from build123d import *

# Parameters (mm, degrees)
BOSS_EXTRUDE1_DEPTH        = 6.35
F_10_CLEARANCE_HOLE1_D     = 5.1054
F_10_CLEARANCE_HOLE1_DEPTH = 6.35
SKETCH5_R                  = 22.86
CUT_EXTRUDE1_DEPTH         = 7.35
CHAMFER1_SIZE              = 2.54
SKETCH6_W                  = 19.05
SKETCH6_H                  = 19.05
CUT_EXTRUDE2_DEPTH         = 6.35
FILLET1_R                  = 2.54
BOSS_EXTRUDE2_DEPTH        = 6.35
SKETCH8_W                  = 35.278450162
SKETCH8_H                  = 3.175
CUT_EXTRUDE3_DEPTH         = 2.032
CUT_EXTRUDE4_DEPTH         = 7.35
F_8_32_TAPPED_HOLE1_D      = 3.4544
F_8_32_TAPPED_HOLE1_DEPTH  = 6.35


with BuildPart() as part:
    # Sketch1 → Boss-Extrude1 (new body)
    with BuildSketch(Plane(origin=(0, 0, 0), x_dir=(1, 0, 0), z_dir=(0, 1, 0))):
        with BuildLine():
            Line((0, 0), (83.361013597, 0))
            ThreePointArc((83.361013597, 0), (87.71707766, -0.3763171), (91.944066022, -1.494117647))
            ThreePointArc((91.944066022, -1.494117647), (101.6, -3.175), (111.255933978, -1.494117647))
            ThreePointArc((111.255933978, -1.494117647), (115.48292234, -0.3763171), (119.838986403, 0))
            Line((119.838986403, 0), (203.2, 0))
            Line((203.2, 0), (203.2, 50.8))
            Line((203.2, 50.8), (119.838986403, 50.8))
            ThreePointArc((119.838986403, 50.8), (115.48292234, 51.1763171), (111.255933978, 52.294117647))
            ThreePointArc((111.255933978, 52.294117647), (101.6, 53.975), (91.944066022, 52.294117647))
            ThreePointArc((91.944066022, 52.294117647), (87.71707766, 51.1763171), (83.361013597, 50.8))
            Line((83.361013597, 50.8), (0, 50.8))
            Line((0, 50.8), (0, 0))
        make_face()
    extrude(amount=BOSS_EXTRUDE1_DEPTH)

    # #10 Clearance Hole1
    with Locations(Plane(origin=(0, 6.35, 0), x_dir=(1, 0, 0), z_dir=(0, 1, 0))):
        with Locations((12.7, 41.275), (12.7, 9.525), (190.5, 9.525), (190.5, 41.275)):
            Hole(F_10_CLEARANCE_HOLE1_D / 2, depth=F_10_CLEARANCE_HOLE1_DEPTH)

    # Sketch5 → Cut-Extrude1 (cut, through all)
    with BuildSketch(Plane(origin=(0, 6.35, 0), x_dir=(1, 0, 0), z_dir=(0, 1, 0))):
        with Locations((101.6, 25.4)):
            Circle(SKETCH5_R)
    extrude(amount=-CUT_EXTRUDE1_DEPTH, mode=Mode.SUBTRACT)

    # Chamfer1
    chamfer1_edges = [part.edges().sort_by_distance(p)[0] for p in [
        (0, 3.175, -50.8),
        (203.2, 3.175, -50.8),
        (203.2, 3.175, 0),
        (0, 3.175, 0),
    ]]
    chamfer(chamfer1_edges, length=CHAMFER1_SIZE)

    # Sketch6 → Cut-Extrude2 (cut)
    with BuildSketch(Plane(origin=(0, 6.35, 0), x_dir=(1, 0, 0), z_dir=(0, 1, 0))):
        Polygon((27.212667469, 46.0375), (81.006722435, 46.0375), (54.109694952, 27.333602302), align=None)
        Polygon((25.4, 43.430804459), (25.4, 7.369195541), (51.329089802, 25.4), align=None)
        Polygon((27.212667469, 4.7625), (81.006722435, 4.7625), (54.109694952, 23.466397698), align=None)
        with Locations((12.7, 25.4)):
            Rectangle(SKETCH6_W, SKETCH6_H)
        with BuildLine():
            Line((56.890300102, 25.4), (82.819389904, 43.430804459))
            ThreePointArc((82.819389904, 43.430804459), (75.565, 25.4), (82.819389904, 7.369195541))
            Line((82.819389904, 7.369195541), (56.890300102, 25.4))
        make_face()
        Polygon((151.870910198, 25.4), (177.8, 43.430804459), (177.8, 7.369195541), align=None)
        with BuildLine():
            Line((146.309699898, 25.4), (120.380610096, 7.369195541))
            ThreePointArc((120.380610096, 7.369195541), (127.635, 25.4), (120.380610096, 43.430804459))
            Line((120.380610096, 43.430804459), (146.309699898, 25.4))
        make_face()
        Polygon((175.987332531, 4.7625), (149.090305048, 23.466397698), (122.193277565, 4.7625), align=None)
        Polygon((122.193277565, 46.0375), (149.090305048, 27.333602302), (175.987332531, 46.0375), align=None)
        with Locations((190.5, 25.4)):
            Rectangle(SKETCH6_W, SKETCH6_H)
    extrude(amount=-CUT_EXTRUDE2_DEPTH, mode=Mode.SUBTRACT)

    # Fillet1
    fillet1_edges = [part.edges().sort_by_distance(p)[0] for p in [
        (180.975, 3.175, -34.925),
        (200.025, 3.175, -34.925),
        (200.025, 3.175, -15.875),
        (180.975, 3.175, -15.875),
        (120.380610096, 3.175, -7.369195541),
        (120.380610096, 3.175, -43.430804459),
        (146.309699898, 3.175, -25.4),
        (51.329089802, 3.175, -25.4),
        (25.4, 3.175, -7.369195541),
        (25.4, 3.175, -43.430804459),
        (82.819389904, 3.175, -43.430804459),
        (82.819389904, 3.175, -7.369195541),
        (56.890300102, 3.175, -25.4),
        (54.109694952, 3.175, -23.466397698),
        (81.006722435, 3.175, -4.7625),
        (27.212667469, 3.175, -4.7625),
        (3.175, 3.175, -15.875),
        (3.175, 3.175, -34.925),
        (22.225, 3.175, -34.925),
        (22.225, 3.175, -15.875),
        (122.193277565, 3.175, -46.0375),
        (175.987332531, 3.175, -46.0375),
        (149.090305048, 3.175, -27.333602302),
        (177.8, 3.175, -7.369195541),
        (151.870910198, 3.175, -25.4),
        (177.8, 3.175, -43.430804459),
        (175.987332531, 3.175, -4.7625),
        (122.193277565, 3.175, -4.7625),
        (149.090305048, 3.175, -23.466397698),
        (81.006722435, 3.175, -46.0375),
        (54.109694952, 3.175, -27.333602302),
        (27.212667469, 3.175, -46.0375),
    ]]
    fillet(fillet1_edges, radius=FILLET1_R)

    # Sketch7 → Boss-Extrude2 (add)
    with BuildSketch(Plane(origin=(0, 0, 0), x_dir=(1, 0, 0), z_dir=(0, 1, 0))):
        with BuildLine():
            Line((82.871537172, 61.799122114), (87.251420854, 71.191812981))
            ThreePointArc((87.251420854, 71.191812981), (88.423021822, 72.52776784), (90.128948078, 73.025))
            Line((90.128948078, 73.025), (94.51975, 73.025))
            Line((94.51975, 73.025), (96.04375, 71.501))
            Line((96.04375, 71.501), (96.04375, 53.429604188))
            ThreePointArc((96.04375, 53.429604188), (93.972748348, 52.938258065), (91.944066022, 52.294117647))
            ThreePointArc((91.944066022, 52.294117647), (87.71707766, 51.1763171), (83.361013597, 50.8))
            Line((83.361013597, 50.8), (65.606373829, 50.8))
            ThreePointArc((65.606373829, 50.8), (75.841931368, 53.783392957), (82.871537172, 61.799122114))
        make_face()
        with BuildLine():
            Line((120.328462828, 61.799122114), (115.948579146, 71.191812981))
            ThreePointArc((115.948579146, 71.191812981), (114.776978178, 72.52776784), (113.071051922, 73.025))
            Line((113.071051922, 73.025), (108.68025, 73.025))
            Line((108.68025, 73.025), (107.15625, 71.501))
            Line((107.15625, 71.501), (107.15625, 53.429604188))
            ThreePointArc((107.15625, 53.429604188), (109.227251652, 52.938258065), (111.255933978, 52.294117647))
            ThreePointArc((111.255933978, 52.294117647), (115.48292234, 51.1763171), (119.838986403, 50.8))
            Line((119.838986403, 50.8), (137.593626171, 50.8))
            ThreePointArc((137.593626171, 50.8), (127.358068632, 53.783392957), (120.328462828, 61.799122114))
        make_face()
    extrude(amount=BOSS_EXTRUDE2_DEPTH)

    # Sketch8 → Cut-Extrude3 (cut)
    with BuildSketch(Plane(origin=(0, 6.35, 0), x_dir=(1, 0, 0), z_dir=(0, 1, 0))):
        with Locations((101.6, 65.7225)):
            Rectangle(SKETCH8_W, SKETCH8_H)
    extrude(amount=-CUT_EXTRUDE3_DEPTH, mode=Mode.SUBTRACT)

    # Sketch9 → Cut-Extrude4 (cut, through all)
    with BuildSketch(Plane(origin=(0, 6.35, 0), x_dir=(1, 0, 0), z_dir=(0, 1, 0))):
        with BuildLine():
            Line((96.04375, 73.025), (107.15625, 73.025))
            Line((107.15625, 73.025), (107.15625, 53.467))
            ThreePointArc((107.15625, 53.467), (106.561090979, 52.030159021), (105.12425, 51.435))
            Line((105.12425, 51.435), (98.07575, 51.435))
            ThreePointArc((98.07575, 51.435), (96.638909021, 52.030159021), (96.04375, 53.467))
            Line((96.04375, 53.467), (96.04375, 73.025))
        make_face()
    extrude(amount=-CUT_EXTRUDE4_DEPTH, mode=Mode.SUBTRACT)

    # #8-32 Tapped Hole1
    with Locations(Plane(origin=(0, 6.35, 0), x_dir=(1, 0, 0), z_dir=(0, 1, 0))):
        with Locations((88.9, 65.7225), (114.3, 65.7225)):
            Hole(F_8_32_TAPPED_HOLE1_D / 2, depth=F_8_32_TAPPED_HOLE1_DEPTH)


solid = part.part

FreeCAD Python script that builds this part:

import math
import FreeCAD as App
import Part
import Sketcher

V = App.Vector
Q = App.Units.Quantity


def edges_at(feature, points):
    """Names of the edges that pass closest to the given points."""
    edges = feature.Shape.Edges
    near = lambda p: min(range(len(edges)), key=lambda i: edges[i].distToShape(Part.Vertex(*p))[0])
    return sorted({f"Edge{near(p) + 1}" for p in points})

doc = App.newDocument("Part")
body = doc.addObject("PartDesign::Body", "Body")

# Sketch on XZ plane
sketch1 = body.newObject("Sketcher::SketchObject", "Sketch")
sketch1.AttachmentSupport = (doc.getObject("XZ_Plane"), [""])
sketch1.MapMode = "FlatFace"
sketch1.addGeometry(Part.LineSegment(V(0, 0, 0), V(83.361014, 0, 0)), False)
sketch1.addGeometry(Part.ArcOfCircle(Part.Circle(V(83.361014, 25.4, 0), V(0, 0, 1), 25.4), math.radians(-90), math.radians(-70.250077)), False)
sketch1.addGeometry(Part.ArcOfCircle(Part.Circle(V(101.6, -25.4, 0), V(0, 0, 1), 28.575), math.radians(70.250077), math.radians(109.749923)), False)
sketch1.addGeometry(Part.ArcOfCircle(Part.Circle(V(119.838986, 25.4, 0), V(0, 0, 1), 25.4), math.radians(-109.749923), math.radians(-90)), False)
sketch1.addGeometry(Part.LineSegment(V(119.838986, 0, 0), V(203.2, 0, 0)), False)
sketch1.addGeometry(Part.LineSegment(V(203.2, 0, 0), V(203.2, -50.8, 0)), False)
sketch1.addGeometry(Part.LineSegment(V(203.2, -50.8, 0), V(119.838986, -50.8, 0)), False)
sketch1.addGeometry(Part.ArcOfCircle(Part.Circle(V(119.838986, -76.2, 0), V(0, 0, 1), 25.4), math.radians(90), math.radians(109.749923)), False)
sketch1.addGeometry(Part.ArcOfCircle(Part.Circle(V(101.6, -25.4, 0), V(0, 0, 1), 28.575), math.radians(-109.749923), math.radians(-70.250077)), False)
sketch1.addGeometry(Part.ArcOfCircle(Part.Circle(V(83.361014, -76.2, 0), V(0, 0, 1), 25.4), math.radians(70.250077), math.radians(90)), False)
sketch1.addGeometry(Part.LineSegment(V(83.361014, -50.8, 0), V(0, -50.8, 0)), False)
sketch1.addGeometry(Part.LineSegment(V(0, -50.8, 0), V(0, 0, 0)), False)
sketch1.addConstraint(Sketcher.Constraint("Tangent", 0, 2, 1, 1))
sketch1.addConstraint(Sketcher.Constraint("Tangent", 1, 2, 2, 2))
sketch1.addConstraint(Sketcher.Constraint("Tangent", 2, 1, 3, 1))
sketch1.addConstraint(Sketcher.Constraint("Tangent", 3, 2, 4, 1))
sketch1.addConstraint(Sketcher.Constraint("Coincident", 4, 2, 5, 1))
sketch1.addConstraint(Sketcher.Constraint("Coincident", 5, 2, 6, 1))
sketch1.addConstraint(Sketcher.Constraint("Tangent", 6, 2, 7, 1))
sketch1.addConstraint(Sketcher.Constraint("Tangent", 7, 2, 8, 2))
sketch1.addConstraint(Sketcher.Constraint("Tangent", 8, 1, 9, 1))
sketch1.addConstraint(Sketcher.Constraint("Tangent", 9, 2, 10, 1))
sketch1.addConstraint(Sketcher.Constraint("Coincident", 10, 2, 11, 1))
sketch1.addConstraint(Sketcher.Constraint("Coincident", 11, 2, 0, 1))
sketch1.addConstraint(Sketcher.Constraint("Horizontal", 0))
sketch1.addConstraint(Sketcher.Constraint("Horizontal", 4))
sketch1.addConstraint(Sketcher.Constraint("Vertical", 5))
sketch1.addConstraint(Sketcher.Constraint("Horizontal", 6))
sketch1.addConstraint(Sketcher.Constraint("Horizontal", 10))
sketch1.addConstraint(Sketcher.Constraint("Vertical", 11))
sketch1.addConstraint(Sketcher.Constraint("Coincident", 11, 2, -1, 1))
sketch1.addConstraint(Sketcher.Constraint("Coincident", 8, 3, 2, 3))
sketch1.addConstraint(Sketcher.Constraint("Equal", 1, 3))
sketch1.addConstraint(Sketcher.Constraint("Equal", 3, 7))
sketch1.addConstraint(Sketcher.Constraint("Equal", 2, 8))
sketch1.addConstraint(Sketcher.Constraint("Equal", 7, 9))
sketch1.addConstraint(Sketcher.Constraint("PointOnObject", 3, 2, -1))
sketch1.addConstraint(Sketcher.Constraint("Horizontal", 7, 3, 9, 3))
sketch1.addConstraint(Sketcher.Constraint("Vertical", 3, 3, 7, 3))
sketch1.addConstraint(Sketcher.Constraint("Equal", 0, 4))
sketch1.addConstraint(Sketcher.Constraint("Radius", 1, Q("1 in")))
sketch1.addConstraint(Sketcher.Constraint("DistanceY", 5, 2, 5, 1, Q("2 in")))
sketch1.addConstraint(Sketcher.Constraint("DistanceX", -1, 1, 2, 3, Q("4 in")))
sketch1.addConstraint(Sketcher.Constraint("Radius", 2, Q("1.125 in")))
pad1 = body.newObject("PartDesign::Pad", "Pad")
pad1.Profile = sketch1
pad1.Length = Q("0.25 in")
pad1.Reversed = True

# Sketch on XZ plane
sketch2 = body.newObject("Sketcher::SketchObject", "Sketch001")
sketch2.AttachmentSupport = (doc.getObject("XZ_Plane"), [""])
sketch2.MapMode = "FlatFace"
sketch2.AttachmentOffset = App.Placement(V(0, 0, -0.25 * 25.4), App.Rotation())
sketch2.addGeometry(Part.Circle(V(12.7, -41.275, 0), V(0, 0, 1), 2.5527), False)
sketch2.addGeometry(Part.Circle(V(12.7, -9.525, 0), V(0, 0, 1), 2.5527), False)
sketch2.addGeometry(Part.Circle(V(190.5, -9.525, 0), V(0, 0, 1), 2.5527), False)
sketch2.addGeometry(Part.Circle(V(190.5, -41.275, 0), V(0, 0, 1), 2.5527), False)
sketch2.addConstraint(Sketcher.Constraint("Equal", 0, 1))
sketch2.addConstraint(Sketcher.Constraint("Equal", 1, 2))
sketch2.addConstraint(Sketcher.Constraint("Equal", 2, 3))
sketch2.addConstraint(Sketcher.Constraint("Horizontal", 1, 3, 2, 3))
sketch2.addConstraint(Sketcher.Constraint("Horizontal", 0, 3, 3, 3))
sketch2.addConstraint(Sketcher.Constraint("Vertical", 0, 3, 1, 3))
sketch2.addConstraint(Sketcher.Constraint("Vertical", 2, 3, 3, 3))
sketch2.addConstraint(Sketcher.Constraint("Diameter", 0, Q("0.201 in")))
sketch2.addConstraint(Sketcher.Constraint("DistanceX", 1, 3, 2, 3, Q("7 in")))
sketch2.addConstraint(Sketcher.Constraint("DistanceX", -1, 1, 0, 3, Q("0.5 in")))
sketch2.addConstraint(Sketcher.Constraint("DistanceY", 0, 3, 1, 3, Q("1.25 in")))
sketch2.addConstraint(Sketcher.Constraint("DistanceY", 0, 3, -1, 1, Q("1.625 in")))
doc.recompute()
hole = body.newObject("PartDesign::Hole", "Hole")
hole.Profile = sketch2
hole.ThreadType = "None"
hole.Diameter = Q("0.201 in")
hole.DepthType = "Dimension"
hole.Depth = Q("0.25 in")
hole.DrillPoint = "Flat"
hole.Reversed = True

# Sketch on XZ plane
sketch3 = body.newObject("Sketcher::SketchObject", "Sketch002")
sketch3.AttachmentSupport = (doc.getObject("XZ_Plane"), [""])
sketch3.MapMode = "FlatFace"
sketch3.AttachmentOffset = App.Placement(V(0, 0, -0.25 * 25.4), App.Rotation())
sketch3.addGeometry(Part.Circle(V(101.6, -25.4, 0), V(0, 0, 1), 22.86), False)
sketch3.addConstraint(Sketcher.Constraint("Diameter", 0, Q("1.8 in")))
sketch3.addConstraint(Sketcher.Constraint("DistanceX", -1, 1, 0, 3, Q("4 in")))
sketch3.addConstraint(Sketcher.Constraint("DistanceY", 0, 3, -1, 1, Q("1 in")))
pocket1 = body.newObject("PartDesign::Pocket", "Pocket")
pocket1.Profile = sketch3
pocket1.Type = "ThroughAll"
pocket1.Reversed = True
doc.recompute()

chamfer = body.newObject("PartDesign::Chamfer", "Chamfer")
chamfer.Base = (pocket1, edges_at(pocket1, [
    (0, 3.175, -50.8),
    (203.2, 3.175, -50.8),
    (203.2, 3.175, 0),
    (0, 3.175, 0),
]))
chamfer.Size = Q("0.1 in")

# Sketch on XZ plane
sketch4 = body.newObject("Sketcher::SketchObject", "Sketch003")
sketch4.AttachmentSupport = (doc.getObject("XZ_Plane"), [""])
sketch4.MapMode = "FlatFace"
sketch4.AttachmentOffset = App.Placement(V(0, 0, -0.25 * 25.4), App.Rotation())
sketch4.addGeometry(Part.LineSegment(V(81.006722, -46.0375, 0), V(27.212667, -46.0375, 0)), False)
sketch4.addGeometry(Part.LineSegment(V(27.212667, -46.0375, 0), V(54.109695, -27.333602, 0)), False)
sketch4.addGeometry(Part.LineSegment(V(54.109695, -27.333602, 0), V(81.006722, -46.0375, 0)), False)
sketch4.addGeometry(Part.LineSegment(V(25.4, -43.430804, 0), V(25.4, -7.369196, 0)), False)
sketch4.addGeometry(Part.LineSegment(V(25.4, -7.369196, 0), V(51.32909, -25.4, 0)), False)
sketch4.addGeometry(Part.LineSegment(V(51.32909, -25.4, 0), V(25.4, -43.430804, 0)), False)
sketch4.addGeometry(Part.LineSegment(V(27.212667, -4.7625, 0), V(81.006722, -4.7625, 0)), False)
sketch4.addGeometry(Part.LineSegment(V(81.006722, -4.7625, 0), V(54.109695, -23.466398, 0)), False)
sketch4.addGeometry(Part.LineSegment(V(54.109695, -23.466398, 0), V(27.212667, -4.7625, 0)), False)
sketch4.addGeometry(Part.LineSegment(V(3.175, -34.925, 0), V(3.175, -15.875, 0)), False)
sketch4.addGeometry(Part.LineSegment(V(3.175, -15.875, 0), V(22.225, -15.875, 0)), False)
sketch4.addGeometry(Part.LineSegment(V(22.225, -15.875, 0), V(22.225, -34.925, 0)), False)
sketch4.addGeometry(Part.LineSegment(V(22.225, -34.925, 0), V(3.175, -34.925, 0)), False)
sketch4.addGeometry(Part.LineSegment(V(82.81939, -43.430804, 0), V(56.8903, -25.4, 0)), False)
sketch4.addGeometry(Part.LineSegment(V(56.8903, -25.4, 0), V(82.81939, -7.369196, 0)), False)
sketch4.addGeometry(Part.ArcOfCircle(Part.Circle(V(101.6, -25.4, 0), V(0, 0, 1), 26.035), math.radians(136.166887), math.radians(223.833113)), False)
sketch4.addGeometry(Part.LineSegment(V(177.8, -43.430804, 0), V(151.87091, -25.4, 0)), False)
sketch4.addGeometry(Part.LineSegment(V(151.87091, -25.4, 0), V(177.8, -7.369196, 0)), False)
sketch4.addGeometry(Part.LineSegment(V(177.8, -7.369196, 0), V(177.8, -43.430804, 0)), False)
sketch4.addGeometry(Part.LineSegment(V(120.38061, -7.369196, 0), V(146.3097, -25.4, 0)), False)
sketch4.addGeometry(Part.LineSegment(V(146.3097, -25.4, 0), V(120.38061, -43.430804, 0)), False)
sketch4.addGeometry(Part.ArcOfCircle(Part.Circle(V(101.6, -25.4, 0), V(0, 0, 1), 26.035), math.radians(-43.833113), math.radians(43.833113)), False)
sketch4.addGeometry(Part.LineSegment(V(175.987333, -4.7625, 0), V(149.090305, -23.466398, 0)), False)
sketch4.addGeometry(Part.LineSegment(V(149.090305, -23.466398, 0), V(122.193278, -4.7625, 0)), False)
sketch4.addGeometry(Part.LineSegment(V(122.193278, -4.7625, 0), V(175.987333, -4.7625, 0)), False)
sketch4.addGeometry(Part.LineSegment(V(122.193278, -46.0375, 0), V(149.090305, -27.333602, 0)), False)
sketch4.addGeometry(Part.LineSegment(V(149.090305, -27.333602, 0), V(175.987333, -46.0375, 0)), False)
sketch4.addGeometry(Part.LineSegment(V(175.987333, -46.0375, 0), V(122.193278, -46.0375, 0)), False)
sketch4.addGeometry(Part.LineSegment(V(180.975, -34.925, 0), V(180.975, -15.875, 0)), False)
sketch4.addGeometry(Part.LineSegment(V(180.975, -15.875, 0), V(200.025, -15.875, 0)), False)
sketch4.addGeometry(Part.LineSegment(V(200.025, -15.875, 0), V(200.025, -34.925, 0)), False)
sketch4.addGeometry(Part.LineSegment(V(200.025, -34.925, 0), V(180.975, -34.925, 0)), False)
sketch4.addConstraint(Sketcher.Constraint("Coincident", 0, 2, 1, 1))
sketch4.addConstraint(Sketcher.Constraint("Coincident", 1, 2, 2, 1))
sketch4.addConstraint(Sketcher.Constraint("Coincident", 2, 2, 0, 1))
sketch4.addConstraint(Sketcher.Constraint("Coincident", 3, 2, 4, 1))
sketch4.addConstraint(Sketcher.Constraint("Coincident", 4, 2, 5, 1))
sketch4.addConstraint(Sketcher.Constraint("Coincident", 5, 2, 3, 1))
sketch4.addConstraint(Sketcher.Constraint("Coincident", 6, 2, 7, 1))
sketch4.addConstraint(Sketcher.Constraint("Coincident", 7, 2, 8, 1))
sketch4.addConstraint(Sketcher.Constraint("Coincident", 8, 2, 6, 1))
sketch4.addConstraint(Sketcher.Constraint("Coincident", 9, 2, 10, 1))
sketch4.addConstraint(Sketcher.Constraint("Coincident", 10, 2, 11, 1))
sketch4.addConstraint(Sketcher.Constraint("Coincident", 11, 2, 12, 1))
sketch4.addConstraint(Sketcher.Constraint("Coincident", 12, 2, 9, 1))
sketch4.addConstraint(Sketcher.Constraint("Coincident", 13, 2, 14, 1))
sketch4.addConstraint(Sketcher.Constraint("Coincident", 14, 2, 15, 1))
sketch4.addConstraint(Sketcher.Constraint("Coincident", 15, 2, 13, 1))
sketch4.addConstraint(Sketcher.Constraint("Coincident", 16, 2, 17, 1))
sketch4.addConstraint(Sketcher.Constraint("Coincident", 17, 2, 18, 1))
sketch4.addConstraint(Sketcher.Constraint("Coincident", 18, 2, 16, 1))
sketch4.addConstraint(Sketcher.Constraint("Coincident", 19, 2, 20, 1))
sketch4.addConstraint(Sketcher.Constraint("Coincident", 20, 2, 21, 1))
sketch4.addConstraint(Sketcher.Constraint("Coincident", 21, 2, 19, 1))
sketch4.addConstraint(Sketcher.Constraint("Coincident", 22, 2, 23, 1))
sketch4.addConstraint(Sketcher.Constraint("Coincident", 23, 2, 24, 1))
sketch4.addConstraint(Sketcher.Constraint("Coincident", 24, 2, 22, 1))
sketch4.addConstraint(Sketcher.Constraint("Coincident", 25, 2, 26, 1))
sketch4.addConstraint(Sketcher.Constraint("Coincident", 26, 2, 27, 1))
sketch4.addConstraint(Sketcher.Constraint("Coincident", 27, 2, 25, 1))
sketch4.addConstraint(Sketcher.Constraint("Coincident", 28, 2, 29, 1))
sketch4.addConstraint(Sketcher.Constraint("Coincident", 29, 2, 30, 1))
sketch4.addConstraint(Sketcher.Constraint("Coincident", 30, 2, 31, 1))
sketch4.addConstraint(Sketcher.Constraint("Coincident", 31, 2, 28, 1))
sketch4.addConstraint(Sketcher.Constraint("Horizontal", 0))
sketch4.addConstraint(Sketcher.Constraint("Vertical", 3))
sketch4.addConstraint(Sketcher.Constraint("Horizontal", 6))
sketch4.addConstraint(Sketcher.Constraint("Vertical", 9))
sketch4.addConstraint(Sketcher.Constraint("Horizontal", 10))
sketch4.addConstraint(Sketcher.Constraint("Vertical", 11))
sketch4.addConstraint(Sketcher.Constraint("Horizontal", 12))
sketch4.addConstraint(Sketcher.Constraint("Vertical", 18))
sketch4.addConstraint(Sketcher.Constraint("Horizontal", 24))
sketch4.addConstraint(Sketcher.Constraint("Horizontal", 27))
sketch4.addConstraint(Sketcher.Constraint("Vertical", 28))
sketch4.addConstraint(Sketcher.Constraint("Horizontal", 29))
sketch4.addConstraint(Sketcher.Constraint("Vertical", 30))
sketch4.addConstraint(Sketcher.Constraint("Horizontal", 31))
sketch4.addConstraint(Sketcher.Constraint("Coincident", 21, 3, 15, 3))
sketch4.addConstraint(Sketcher.Constraint("Equal", 15, 21))
sketch4.addConstraint(Sketcher.Constraint("Parallel", 2, 4))
sketch4.addConstraint(Sketcher.Constraint("Parallel", 1, 5))
sketch4.addConstraint(Sketcher.Constraint("Parallel", 5, 7))
sketch4.addConstraint(Sketcher.Constraint("Parallel", 4, 8))
sketch4.addConstraint(Sketcher.Constraint("Parallel", 8, 13))
sketch4.addConstraint(Sketcher.Constraint("Parallel", 7, 14))
sketch4.addConstraint(Sketcher.Constraint("Parallel", 13, 16))
sketch4.addConstraint(Sketcher.Constraint("Parallel", 14, 17))
sketch4.addConstraint(Sketcher.Constraint("Parallel", 16, 19))
sketch4.addConstraint(Sketcher.Constraint("Parallel", 17, 20))
sketch4.addConstraint(Sketcher.Constraint("Parallel", 20, 22))
sketch4.addConstraint(Sketcher.Constraint("Parallel", 19, 23))
sketch4.addConstraint(Sketcher.Constraint("Parallel", 22, 25))
sketch4.addConstraint(Sketcher.Constraint("Parallel", 23, 26))
sketch4.addConstraint(Sketcher.Constraint("Horizontal", 21, 3, 4, 2))
sketch4.addConstraint(Sketcher.Constraint("Horizontal", 4, 2, 13, 2))
sketch4.addConstraint(Sketcher.Constraint("Horizontal", 3, 2, 14, 2))
sketch4.addConstraint(Sketcher.Constraint("Horizontal", 5, 2, 15, 2))
sketch4.addConstraint(Sketcher.Constraint("Horizontal", 13, 2, 16, 2))
sketch4.addConstraint(Sketcher.Constraint("Horizontal", 14, 2, 17, 2))
sketch4.addConstraint(Sketcher.Constraint("Horizontal", 16, 2, 19, 2))
sketch4.addConstraint(Sketcher.Constraint("Horizontal", 18, 2, 20, 2))
sketch4.addConstraint(Sketcher.Constraint("Horizontal", 7, 2, 22, 2))
sketch4.addConstraint(Sketcher.Constraint("Horizontal", 8, 2, 23, 2))
sketch4.addConstraint(Sketcher.Constraint("Horizontal", 1, 2, 25, 2))
sketch4.addConstraint(Sketcher.Constraint("Horizontal", 2, 2, 26, 2))
sketch4.addConstraint(Sketcher.Constraint("Horizontal", 10, 2, 28, 2))
sketch4.addConstraint(Sketcher.Constraint("Horizontal", 12, 2, 30, 2))
sketch4.addConstraint(Sketcher.Constraint("Vertical", 2, 2, 6, 2))
sketch4.addConstraint(Sketcher.Constraint("Vertical", 1, 2, 7, 2))
sketch4.addConstraint(Sketcher.Constraint("Vertical", 22, 2, 25, 2))
sketch4.addConstraint(Sketcher.Constraint("Equal", 12, 29))
sketch4.addConstraint(Sketcher.Constraint("Equal", 31, 9))
sketch4.addConstraint(Sketcher.Constraint("DistanceX", -1, 1, 15, 3, Q("4 in")))
sketch4.addConstraint(Sketcher.Constraint("DistanceY", 15, 3, -1, 1, Q("1 in")))
sketch4.addConstraint(Sketcher.Constraint("DistanceX", -1, 1, 3, 2, Q("1 in")))
sketch4.addConstraint(Sketcher.Constraint("DistanceX", -1, 1, 17, 2, Q("7 in")))
sketch4.addConstraint(Sketcher.Constraint("Radius", 15, Q("1.025 in")))
sketch4.addConstraint(Sketcher.Constraint("DistanceX", 10, 1, 10, 2, Q("0.75 in")))
sketch4.addConstraint(Sketcher.Constraint("DistanceY", 0, 2, -1, 1, Q("1.8125 in")))
sketch4.addConstraint(Sketcher.Constraint("DistanceY", 6, 2, -1, 1, Q("0.1875 in")))
sketch4.addConstraint(Sketcher.Constraint("DistanceX", -1, 1, 9, 2, Q("0.125 in")))
sketch4.addConstraint(Sketcher.Constraint("DistanceY", 9, 2, -1, 1, Q("0.625 in")))
sketch4.addConstraint(Sketcher.Constraint("DistanceX", -1, 1, 28, 2, Q("7.125 in")))
sketch4.addConstraint(Sketcher.Constraint("DistanceY", 3, 1, 3, 2, 36.061609))
sketch4.addConstraint(Sketcher.Constraint("DistanceX", -1, 1, 13, 2, 56.8903))
sketch4.addConstraint(Sketcher.Constraint("DistanceX", 0, 2, 0, 1, 53.794055))
sketch4.addConstraint(Sketcher.Constraint("DistanceX", -1, 1, 0, 2, 27.212667))
sketch4.addConstraint(Sketcher.Constraint("DistanceX", -1, 1, 22, 2, 149.090305))
pocket2 = body.newObject("PartDesign::Pocket", "Pocket001")
pocket2.Profile = sketch4
pocket2.Length = Q("0.25 in")
pocket2.Reversed = True
doc.recompute()

fillet = body.newObject("PartDesign::Fillet", "Fillet")
fillet.Base = (pocket2, edges_at(pocket2, [
    (180.975, 3.175, -34.925),
    (200.025, 3.175, -34.925),
    (200.025, 3.175, -15.875),
    (180.975, 3.175, -15.875),
    (120.381, 3.175, -7.369),
    (120.381, 3.175, -43.431),
    (146.31, 3.175, -25.4),
    (51.329, 3.175, -25.4),
    (25.4, 3.175, -7.369),
    (25.4, 3.175, -43.431),
    (82.819, 3.175, -43.431),
    (82.819, 3.175, -7.369),
    (56.89, 3.175, -25.4),
    (54.11, 3.175, -23.466),
    (81.007, 3.175, -4.763),
    (27.213, 3.175, -4.763),
    (3.175, 3.175, -15.875),
    (3.175, 3.175, -34.925),
    (22.225, 3.175, -34.925),
    (22.225, 3.175, -15.875),
    (122.193, 3.175, -46.038),
    (175.987, 3.175, -46.038),
    (149.09, 3.175, -27.334),
    (177.8, 3.175, -7.369),
    (151.871, 3.175, -25.4),
    (177.8, 3.175, -43.431),
    (175.987, 3.175, -4.763),
    (122.193, 3.175, -4.763),
    (149.09, 3.175, -23.466),
    (81.007, 3.175, -46.038),
    (54.11, 3.175, -27.334),
    (27.213, 3.175, -46.038),
]))
fillet.Radius = Q("0.1 in")

# Sketch on XZ plane
sketch5 = body.newObject("Sketcher::SketchObject", "Sketch004")
sketch5.AttachmentSupport = (doc.getObject("XZ_Plane"), [""])
sketch5.MapMode = "FlatFace"
sketch5.addGeometry(Part.LineSegment(V(87.251421, -71.191813, 0), V(82.871537, -61.799122, 0)), False)
sketch5.addGeometry(Part.ArcOfCircle(Part.Circle(V(65.606374, -69.85, 0), V(0, 0, 1), 19.05), math.radians(25), math.radians(90)), False)
sketch5.addGeometry(Part.LineSegment(V(65.606374, -50.8, 0), V(83.361014, -50.8, 0)), False)
sketch5.addGeometry(Part.ArcOfCircle(Part.Circle(V(83.361014, -76.2, 0), V(0, 0, 1), 25.4), math.radians(70.250077), math.radians(90)), False)
sketch5.addGeometry(Part.ArcOfCircle(Part.Circle(V(101.6, -25.4, 0), V(0, 0, 1), 28.575), math.radians(-109.749923), math.radians(-101.212271)), False)
sketch5.addGeometry(Part.LineSegment(V(96.04375, -53.429604, 0), V(96.04375, -71.501, 0)), False)
sketch5.addGeometry(Part.LineSegment(V(96.04375, -71.501, 0), V(94.51975, -73.025, 0)), False)
sketch5.addGeometry(Part.LineSegment(V(94.51975, -73.025, 0), V(90.128948, -73.025, 0)), False)
sketch5.addGeometry(Part.ArcOfCircle(Part.Circle(V(90.128948, -69.85, 0), V(0, 0, 1), 3.175), math.radians(-155), math.radians(-90)), False)
sketch5.addGeometry(Part.LineSegment(V(120.328463, -61.799122, 0), V(115.948579, -71.191813, 0)), False)
sketch5.addGeometry(Part.ArcOfCircle(Part.Circle(V(113.071052, -69.85, 0), V(0, 0, 1), 3.175), math.radians(-90), math.radians(-25)), False)
sketch5.addGeometry(Part.LineSegment(V(113.071052, -73.025, 0), V(108.68025, -73.025, 0)), False)
sketch5.addGeometry(Part.LineSegment(V(108.68025, -73.025, 0), V(107.15625, -71.501, 0)), False)
sketch5.addGeometry(Part.LineSegment(V(107.15625, -71.501, 0), V(107.15625, -53.429604, 0)), False)
sketch5.addGeometry(Part.ArcOfCircle(Part.Circle(V(101.6, -25.4, 0), V(0, 0, 1), 28.575), math.radians(-78.787729), math.radians(-70.250077)), False)
sketch5.addGeometry(Part.ArcOfCircle(Part.Circle(V(119.838986, -76.2, 0), V(0, 0, 1), 25.4), math.radians(90), math.radians(109.749923)), False)
sketch5.addGeometry(Part.LineSegment(V(119.838986, -50.8, 0), V(137.593626, -50.8, 0)), False)
sketch5.addGeometry(Part.ArcOfCircle(Part.Circle(V(137.593626, -69.85, 0), V(0, 0, 1), 19.05), math.radians(90), math.radians(155)), False)
sketch5.addConstraint(Sketcher.Constraint("Tangent", 0, 2, 1, 1))
sketch5.addConstraint(Sketcher.Constraint("Tangent", 1, 2, 2, 1))
sketch5.addConstraint(Sketcher.Constraint("Tangent", 2, 2, 3, 2))
sketch5.addConstraint(Sketcher.Constraint("Tangent", 3, 1, 4, 1))
sketch5.addConstraint(Sketcher.Constraint("Coincident", 4, 2, 5, 1))
sketch5.addConstraint(Sketcher.Constraint("Coincident", 5, 2, 6, 1))
sketch5.addConstraint(Sketcher.Constraint("Coincident", 6, 2, 7, 1))
sketch5.addConstraint(Sketcher.Constraint("Tangent", 7, 2, 8, 2))
sketch5.addConstraint(Sketcher.Constraint("Tangent", 8, 1, 0, 1))
sketch5.addConstraint(Sketcher.Constraint("Tangent", 9, 2, 10, 2))
sketch5.addConstraint(Sketcher.Constraint("Tangent", 10, 1, 11, 1))
sketch5.addConstraint(Sketcher.Constraint("Coincident", 11, 2, 12, 1))
sketch5.addConstraint(Sketcher.Constraint("Coincident", 12, 2, 13, 1))
sketch5.addConstraint(Sketcher.Constraint("Coincident", 13, 2, 14, 1))
sketch5.addConstraint(Sketcher.Constraint("Tangent", 14, 2, 15, 2))
sketch5.addConstraint(Sketcher.Constraint("Tangent", 15, 1, 16, 1))
sketch5.addConstraint(Sketcher.Constraint("Tangent", 16, 2, 17, 1))
sketch5.addConstraint(Sketcher.Constraint("Tangent", 17, 2, 9, 1))
sketch5.addConstraint(Sketcher.Constraint("Horizontal", 2))
sketch5.addConstraint(Sketcher.Constraint("Vertical", 5))
sketch5.addConstraint(Sketcher.Constraint("Horizontal", 7))
sketch5.addConstraint(Sketcher.Constraint("Horizontal", 11))
sketch5.addConstraint(Sketcher.Constraint("Vertical", 13))
sketch5.addConstraint(Sketcher.Constraint("Horizontal", 16))
sketch5.addConstraint(Sketcher.Constraint("Coincident", 14, 3, 4, 3))
sketch5.addConstraint(Sketcher.Constraint("Equal", 8, 10))
sketch5.addConstraint(Sketcher.Constraint("Equal", 4, 14))
sketch5.addConstraint(Sketcher.Constraint("Equal", 3, 15))
sketch5.addConstraint(Sketcher.Constraint("Equal", 1, 17))
sketch5.addConstraint(Sketcher.Constraint("Perpendicular", 6, 12))
sketch5.addConstraint(Sketcher.Constraint("Horizontal", 1, 3, 8, 3))
sketch5.addConstraint(Sketcher.Constraint("Horizontal", 8, 3, 10, 3))
sketch5.addConstraint(Sketcher.Constraint("Horizontal", 3, 3, 15, 3))
sketch5.addConstraint(Sketcher.Constraint("Horizontal", 8, 1, 9, 2))
sketch5.addConstraint(Sketcher.Constraint("Horizontal", 5, 2, 12, 2))
sketch5.addConstraint(Sketcher.Constraint("Horizontal", 4, 2, 13, 2))
sketch5.addConstraint(Sketcher.Constraint("Equal", 7, 11))
sketch5.addConstraint(Sketcher.Constraint("Equal", 2, 16))
sketch5.addConstraint(Sketcher.Constraint("Radius", 3, Q("1 in")))
sketch5.addConstraint(Sketcher.Constraint("Radius", 1, Q("0.75 in")))
sketch5.addConstraint(Sketcher.Constraint("DistanceY", 3, 3, -1, 1, Q("3 in")))
sketch5.addConstraint(Sketcher.Constraint("DistanceX", -1, 1, 4, 3, Q("4 in")))
sketch5.addConstraint(Sketcher.Constraint("DistanceY", 4, 3, -1, 1, Q("1 in")))
sketch5.addConstraint(Sketcher.Constraint("Angle", 0, Q("115 deg")))
sketch5.addConstraint(Sketcher.Constraint("Radius", 4, Q("1.125 in")))
sketch5.addConstraint(Sketcher.Constraint("Radius", 8, Q("0.125 in")))
sketch5.addConstraint(Sketcher.Constraint("DistanceX", 6, 2, 5, 2, Q("0.06 in")))
sketch5.addConstraint(Sketcher.Constraint("DistanceX", -1, 1, 4, 2, Q("3.78125 in")))
sketch5.addConstraint(Sketcher.Constraint("DistanceX", 7, 2, 7, 1, 4.390802))
pad2 = body.newObject("PartDesign::Pad", "Pad001")
pad2.Profile = sketch5
pad2.Length = Q("0.25 in")
pad2.Reversed = True

# Sketch on XZ plane
sketch6 = body.newObject("Sketcher::SketchObject", "Sketch005")
sketch6.AttachmentSupport = (doc.getObject("XZ_Plane"), [""])
sketch6.MapMode = "FlatFace"
sketch6.AttachmentOffset = App.Placement(V(0, 0, -0.25 * 25.4), App.Rotation())
sketch6.addGeometry(Part.LineSegment(V(83.960775, -67.31, 0), V(83.960775, -64.135, 0)), False)
sketch6.addGeometry(Part.LineSegment(V(83.960775, -64.135, 0), V(119.239225, -64.135, 0)), False)
sketch6.addGeometry(Part.LineSegment(V(119.239225, -64.135, 0), V(119.239225, -67.31, 0)), False)
sketch6.addGeometry(Part.LineSegment(V(119.239225, -67.31, 0), V(83.960775, -67.31, 0)), False)
sketch6.addConstraint(Sketcher.Constraint("Coincident", 0, 2, 1, 1))
sketch6.addConstraint(Sketcher.Constraint("Coincident", 1, 2, 2, 1))
sketch6.addConstraint(Sketcher.Constraint("Coincident", 2, 2, 3, 1))
sketch6.addConstraint(Sketcher.Constraint("Coincident", 3, 2, 0, 1))
sketch6.addConstraint(Sketcher.Constraint("Vertical", 0))
sketch6.addConstraint(Sketcher.Constraint("Horizontal", 1))
sketch6.addConstraint(Sketcher.Constraint("Vertical", 2))
sketch6.addConstraint(Sketcher.Constraint("Horizontal", 3))
sketch6.addConstraint(Sketcher.Constraint("DistanceY", 0, 1, 0, 2, Q("0.125 in")))
sketch6.addConstraint(Sketcher.Constraint("DistanceY", 2, 2, -1, 1, Q("2.65 in")))
sketch6.addConstraint(Sketcher.Constraint("DistanceX", 1, 1, 1, 2, 35.27845))
sketch6.addConstraint(Sketcher.Constraint("DistanceX", -1, 1, 0, 2, 83.960775))
pocket3 = body.newObject("PartDesign::Pocket", "Pocket002")
pocket3.Profile = sketch6
pocket3.Length = Q("0.08 in")
pocket3.Reversed = True

# Sketch on XZ plane
sketch7 = body.newObject("Sketcher::SketchObject", "Sketch006")
sketch7.AttachmentSupport = (doc.getObject("XZ_Plane"), [""])
sketch7.MapMode = "FlatFace"
sketch7.AttachmentOffset = App.Placement(V(0, 0, -0.25 * 25.4), App.Rotation())
sketch7.addGeometry(Part.LineSegment(V(107.15625, -73.025, 0), V(96.04375, -73.025, 0)), False)
sketch7.addGeometry(Part.LineSegment(V(96.04375, -73.025, 0), V(96.04375, -53.467, 0)), False)
sketch7.addGeometry(Part.ArcOfCircle(Part.Circle(V(98.07575, -53.467, 0), V(0, 0, 1), 2.032), math.radians(90), math.radians(180)), False)
sketch7.addGeometry(Part.LineSegment(V(98.07575, -51.435, 0), V(105.12425, -51.435, 0)), False)
sketch7.addGeometry(Part.ArcOfCircle(Part.Circle(V(105.12425, -53.467, 0), V(0, 0, 1), 2.032), math.radians(0), math.radians(90)), False)
sketch7.addGeometry(Part.LineSegment(V(107.15625, -53.467, 0), V(107.15625, -73.025, 0)), False)
sketch7.addConstraint(Sketcher.Constraint("Coincident", 0, 2, 1, 1))
sketch7.addConstraint(Sketcher.Constraint("Tangent", 1, 2, 2, 2))
sketch7.addConstraint(Sketcher.Constraint("Tangent", 2, 1, 3, 1))
sketch7.addConstraint(Sketcher.Constraint("Tangent", 3, 2, 4, 2))
sketch7.addConstraint(Sketcher.Constraint("Tangent", 4, 1, 5, 1))
sketch7.addConstraint(Sketcher.Constraint("Coincident", 5, 2, 0, 1))
sketch7.addConstraint(Sketcher.Constraint("Horizontal", 0))
sketch7.addConstraint(Sketcher.Constraint("Vertical", 1))
sketch7.addConstraint(Sketcher.Constraint("Horizontal", 3))
sketch7.addConstraint(Sketcher.Constraint("Vertical", 5))
sketch7.addConstraint(Sketcher.Constraint("Equal", 2, 4))
sketch7.addConstraint(Sketcher.Constraint("Radius", 2, Q("0.08 in")))
sketch7.addConstraint(Sketcher.Constraint("DistanceY", 1, 1, 1, 2, Q("0.77 in")))
sketch7.addConstraint(Sketcher.Constraint("DistanceX", 0, 2, 0, 1, Q("0.4375 in")))
sketch7.addConstraint(Sketcher.Constraint("DistanceY", 2, 3, -1, 1, Q("2.105 in")))
sketch7.addConstraint(Sketcher.Constraint("DistanceX", -1, 1, 0, 2, Q("3.78125 in")))
pocket4 = body.newObject("PartDesign::Pocket", "Pocket003")
pocket4.Profile = sketch7
pocket4.Type = "ThroughAll"
pocket4.Reversed = True

# Sketch on XZ plane
sketch8 = body.newObject("Sketcher::SketchObject", "Sketch007")
sketch8.AttachmentSupport = (doc.getObject("XZ_Plane"), [""])
sketch8.MapMode = "FlatFace"
sketch8.AttachmentOffset = App.Placement(V(0, 0, -0.25 * 25.4), App.Rotation())
sketch8.addGeometry(Part.Circle(V(88.9, -65.7225, 0), V(0, 0, 1), 1.7272), False)
sketch8.addGeometry(Part.Circle(V(114.3, -65.7225, 0), V(0, 0, 1), 1.7272), False)
sketch8.addConstraint(Sketcher.Constraint("Equal", 0, 1))
sketch8.addConstraint(Sketcher.Constraint("Horizontal", 0, 3, 1, 3))
sketch8.addConstraint(Sketcher.Constraint("Diameter", 0, Q("0.136 in")))
sketch8.addConstraint(Sketcher.Constraint("DistanceX", 0, 3, 1, 3, Q("1 in")))
sketch8.addConstraint(Sketcher.Constraint("DistanceX", -1, 1, 0, 3, Q("3.5 in")))
sketch8.addConstraint(Sketcher.Constraint("DistanceY", 0, 3, -1, 1, Q("2.5875 in")))
doc.recompute()
hole2 = body.newObject("PartDesign::Hole", "Hole001")
hole2.Profile = sketch8
hole2.ThreadType = "None"
hole2.Diameter = Q("0.136 in")
hole2.DepthType = "Dimension"
hole2.Depth = Q("0.25 in")
hole2.DrillPoint = "Flat"
hole2.Reversed = True

doc.recompute()
